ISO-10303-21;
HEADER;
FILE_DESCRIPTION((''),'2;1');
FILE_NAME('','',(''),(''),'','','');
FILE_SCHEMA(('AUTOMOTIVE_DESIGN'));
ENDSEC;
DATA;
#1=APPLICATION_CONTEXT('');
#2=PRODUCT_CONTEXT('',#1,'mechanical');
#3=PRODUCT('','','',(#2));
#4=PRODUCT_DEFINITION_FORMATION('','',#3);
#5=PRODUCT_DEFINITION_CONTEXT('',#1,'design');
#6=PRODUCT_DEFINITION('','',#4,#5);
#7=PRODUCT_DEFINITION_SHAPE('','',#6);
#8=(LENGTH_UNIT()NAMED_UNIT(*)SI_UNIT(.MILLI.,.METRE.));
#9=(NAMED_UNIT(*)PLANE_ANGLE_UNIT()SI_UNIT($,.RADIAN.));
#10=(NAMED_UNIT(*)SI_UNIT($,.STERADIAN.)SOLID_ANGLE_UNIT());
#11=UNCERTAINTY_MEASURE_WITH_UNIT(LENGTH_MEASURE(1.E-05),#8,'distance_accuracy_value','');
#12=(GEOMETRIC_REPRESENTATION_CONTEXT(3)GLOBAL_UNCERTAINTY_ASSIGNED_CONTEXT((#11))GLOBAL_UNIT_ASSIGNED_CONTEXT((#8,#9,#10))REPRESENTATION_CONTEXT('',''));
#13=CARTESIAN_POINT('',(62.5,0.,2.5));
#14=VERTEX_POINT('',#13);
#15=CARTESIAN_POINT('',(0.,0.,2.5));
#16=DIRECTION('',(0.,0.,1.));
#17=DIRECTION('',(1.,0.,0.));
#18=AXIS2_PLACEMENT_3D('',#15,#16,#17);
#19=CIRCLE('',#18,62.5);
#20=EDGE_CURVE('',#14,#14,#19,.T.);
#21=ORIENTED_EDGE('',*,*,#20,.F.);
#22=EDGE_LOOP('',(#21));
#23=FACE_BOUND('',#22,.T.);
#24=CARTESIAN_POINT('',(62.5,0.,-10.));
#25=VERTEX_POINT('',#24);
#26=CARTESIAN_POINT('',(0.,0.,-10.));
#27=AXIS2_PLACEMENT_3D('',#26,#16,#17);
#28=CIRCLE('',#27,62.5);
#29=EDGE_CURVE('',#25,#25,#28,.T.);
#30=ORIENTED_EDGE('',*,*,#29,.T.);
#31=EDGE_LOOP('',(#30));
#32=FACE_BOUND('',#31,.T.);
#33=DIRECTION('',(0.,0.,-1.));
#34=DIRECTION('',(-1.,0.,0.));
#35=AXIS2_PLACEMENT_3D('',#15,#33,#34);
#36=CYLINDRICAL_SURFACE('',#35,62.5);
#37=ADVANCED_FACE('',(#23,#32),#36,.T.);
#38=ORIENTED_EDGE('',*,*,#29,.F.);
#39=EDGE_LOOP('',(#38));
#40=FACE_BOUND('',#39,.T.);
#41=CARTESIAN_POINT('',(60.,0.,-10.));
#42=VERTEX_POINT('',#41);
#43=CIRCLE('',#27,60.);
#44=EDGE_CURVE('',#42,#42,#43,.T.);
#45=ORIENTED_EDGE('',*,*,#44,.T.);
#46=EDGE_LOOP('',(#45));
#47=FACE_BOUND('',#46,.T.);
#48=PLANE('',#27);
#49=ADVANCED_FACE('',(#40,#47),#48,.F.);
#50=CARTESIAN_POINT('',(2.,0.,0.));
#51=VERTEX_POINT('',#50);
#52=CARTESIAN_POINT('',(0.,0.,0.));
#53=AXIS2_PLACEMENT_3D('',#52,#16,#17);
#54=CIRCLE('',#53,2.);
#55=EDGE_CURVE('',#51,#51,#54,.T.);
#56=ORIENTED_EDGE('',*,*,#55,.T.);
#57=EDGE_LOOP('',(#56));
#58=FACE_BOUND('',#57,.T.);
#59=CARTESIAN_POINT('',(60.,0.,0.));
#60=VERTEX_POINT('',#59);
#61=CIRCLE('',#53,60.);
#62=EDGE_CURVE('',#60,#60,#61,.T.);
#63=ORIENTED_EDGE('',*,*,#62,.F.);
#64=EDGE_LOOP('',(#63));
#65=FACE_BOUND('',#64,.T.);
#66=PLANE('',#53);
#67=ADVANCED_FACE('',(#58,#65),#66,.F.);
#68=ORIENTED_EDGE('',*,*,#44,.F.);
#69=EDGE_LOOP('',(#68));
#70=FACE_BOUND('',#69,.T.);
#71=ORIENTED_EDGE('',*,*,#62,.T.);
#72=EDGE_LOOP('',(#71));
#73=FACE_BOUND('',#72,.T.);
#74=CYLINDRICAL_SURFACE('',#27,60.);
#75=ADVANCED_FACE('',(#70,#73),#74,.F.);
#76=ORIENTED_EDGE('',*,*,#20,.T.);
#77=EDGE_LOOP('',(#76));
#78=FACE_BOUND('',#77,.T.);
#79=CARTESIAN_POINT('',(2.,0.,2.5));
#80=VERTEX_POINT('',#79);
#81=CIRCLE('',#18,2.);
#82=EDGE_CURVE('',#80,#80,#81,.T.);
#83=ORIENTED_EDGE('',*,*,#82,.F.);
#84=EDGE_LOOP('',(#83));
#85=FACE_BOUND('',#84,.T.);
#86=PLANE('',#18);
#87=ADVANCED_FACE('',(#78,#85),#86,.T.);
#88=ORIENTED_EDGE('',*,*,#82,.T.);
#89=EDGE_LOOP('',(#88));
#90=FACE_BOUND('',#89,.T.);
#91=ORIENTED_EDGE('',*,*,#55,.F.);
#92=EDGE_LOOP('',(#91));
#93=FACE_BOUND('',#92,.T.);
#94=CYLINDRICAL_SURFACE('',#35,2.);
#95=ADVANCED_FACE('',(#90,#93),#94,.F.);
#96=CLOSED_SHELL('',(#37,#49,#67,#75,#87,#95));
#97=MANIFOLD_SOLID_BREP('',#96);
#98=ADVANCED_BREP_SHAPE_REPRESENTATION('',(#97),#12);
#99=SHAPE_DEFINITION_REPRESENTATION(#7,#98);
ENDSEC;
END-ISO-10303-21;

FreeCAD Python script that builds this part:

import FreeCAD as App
import Part
import Sketcher
from FreeCAD import Vector

doc = App.newDocument("Part")
params = doc.addObject("Spreadsheet::Sheet", "Params")
for row, (alias, value) in enumerate([
    ("sketch1_diameter", "125 mm"),
    ("sketch1_diameter2", "4 mm"),
    ("pad1_length", "2.5 mm"),
    ("sketch2_diameter", "125 mm"),
    ("sketch2_diameter2", "120 mm"),
    ("pad2_length", "10 mm"),
], start=1):
    params.set(f"A{row}", alias)
    params.set(f"B{row}", "=" + value)
    params.setAlias(f"B{row}", alias)

body = doc.addObject("PartDesign::Body", "Body")

# Sketch on XY plane
sketch1 = body.newObject("Sketcher::SketchObject", "Sketch")
sketch1.AttachmentSupport = (doc.getObject("XY_Plane"), [""])
sketch1.MapMode = "FlatFace"
sketch1.addGeometry([
    Part.Circle(Vector(0, 0, 0), Vector(0, 0, 1), 62.5),
    Part.Circle(Vector(0, 0, 0), Vector(0, 0, 1), 2),
], False)
sketch1.addConstraint([
    Sketcher.Constraint("Coincident", 0, 3, -1, 1),
    Sketcher.Constraint("Coincident", 1, 3, -1, 1),
    Sketcher.Constraint("Diameter", 0, 125.0),
    Sketcher.Constraint("Diameter", 1, 4.0),
])
sketch1.setExpression("Constraints[2]", "Params.sketch1_diameter")
sketch1.setExpression("Constraints[3]", "Params.sketch1_diameter2")
pad1 = body.newObject("PartDesign::Pad", "Pad")
pad1.Profile = sketch1
pad1.setExpression("Length", "Params.pad1_length")

# Sketch on XY plane
sketch2 = body.newObject("Sketcher::SketchObject", "Sketch001")
sketch2.AttachmentSupport = (doc.getObject("XY_Plane"), [""])
sketch2.MapMode = "FlatFace"
sketch2.addGeometry([
    Part.Circle(Vector(0, 0, 0), Vector(0, 0, 1), 62),
    Part.Circle(Vector(0, 0, 0), Vector(0, 0, 1), 60),
], False)
sketch2.addConstraint([
    Sketcher.Constraint("Coincident", 0, 3, -1, 1),
    Sketcher.Constraint("Coincident", 1, 3, -1, 1),
    Sketcher.Constraint("Diameter", 0, 125.0),
    Sketcher.Constraint("Diameter", 1, 120.0),
])
sketch2.setExpression("Constraints[2]", "Params.sketch2_diameter")
sketch2.setExpression("Constraints[3]", "Params.sketch2_diameter2")
pad2 = body.newObject("PartDesign::Pad", "Pad001")
pad2.Profile = sketch2
pad2.setExpression("Length", "Params.pad2_length")
pad2.Reversed = True

doc.recompute()
